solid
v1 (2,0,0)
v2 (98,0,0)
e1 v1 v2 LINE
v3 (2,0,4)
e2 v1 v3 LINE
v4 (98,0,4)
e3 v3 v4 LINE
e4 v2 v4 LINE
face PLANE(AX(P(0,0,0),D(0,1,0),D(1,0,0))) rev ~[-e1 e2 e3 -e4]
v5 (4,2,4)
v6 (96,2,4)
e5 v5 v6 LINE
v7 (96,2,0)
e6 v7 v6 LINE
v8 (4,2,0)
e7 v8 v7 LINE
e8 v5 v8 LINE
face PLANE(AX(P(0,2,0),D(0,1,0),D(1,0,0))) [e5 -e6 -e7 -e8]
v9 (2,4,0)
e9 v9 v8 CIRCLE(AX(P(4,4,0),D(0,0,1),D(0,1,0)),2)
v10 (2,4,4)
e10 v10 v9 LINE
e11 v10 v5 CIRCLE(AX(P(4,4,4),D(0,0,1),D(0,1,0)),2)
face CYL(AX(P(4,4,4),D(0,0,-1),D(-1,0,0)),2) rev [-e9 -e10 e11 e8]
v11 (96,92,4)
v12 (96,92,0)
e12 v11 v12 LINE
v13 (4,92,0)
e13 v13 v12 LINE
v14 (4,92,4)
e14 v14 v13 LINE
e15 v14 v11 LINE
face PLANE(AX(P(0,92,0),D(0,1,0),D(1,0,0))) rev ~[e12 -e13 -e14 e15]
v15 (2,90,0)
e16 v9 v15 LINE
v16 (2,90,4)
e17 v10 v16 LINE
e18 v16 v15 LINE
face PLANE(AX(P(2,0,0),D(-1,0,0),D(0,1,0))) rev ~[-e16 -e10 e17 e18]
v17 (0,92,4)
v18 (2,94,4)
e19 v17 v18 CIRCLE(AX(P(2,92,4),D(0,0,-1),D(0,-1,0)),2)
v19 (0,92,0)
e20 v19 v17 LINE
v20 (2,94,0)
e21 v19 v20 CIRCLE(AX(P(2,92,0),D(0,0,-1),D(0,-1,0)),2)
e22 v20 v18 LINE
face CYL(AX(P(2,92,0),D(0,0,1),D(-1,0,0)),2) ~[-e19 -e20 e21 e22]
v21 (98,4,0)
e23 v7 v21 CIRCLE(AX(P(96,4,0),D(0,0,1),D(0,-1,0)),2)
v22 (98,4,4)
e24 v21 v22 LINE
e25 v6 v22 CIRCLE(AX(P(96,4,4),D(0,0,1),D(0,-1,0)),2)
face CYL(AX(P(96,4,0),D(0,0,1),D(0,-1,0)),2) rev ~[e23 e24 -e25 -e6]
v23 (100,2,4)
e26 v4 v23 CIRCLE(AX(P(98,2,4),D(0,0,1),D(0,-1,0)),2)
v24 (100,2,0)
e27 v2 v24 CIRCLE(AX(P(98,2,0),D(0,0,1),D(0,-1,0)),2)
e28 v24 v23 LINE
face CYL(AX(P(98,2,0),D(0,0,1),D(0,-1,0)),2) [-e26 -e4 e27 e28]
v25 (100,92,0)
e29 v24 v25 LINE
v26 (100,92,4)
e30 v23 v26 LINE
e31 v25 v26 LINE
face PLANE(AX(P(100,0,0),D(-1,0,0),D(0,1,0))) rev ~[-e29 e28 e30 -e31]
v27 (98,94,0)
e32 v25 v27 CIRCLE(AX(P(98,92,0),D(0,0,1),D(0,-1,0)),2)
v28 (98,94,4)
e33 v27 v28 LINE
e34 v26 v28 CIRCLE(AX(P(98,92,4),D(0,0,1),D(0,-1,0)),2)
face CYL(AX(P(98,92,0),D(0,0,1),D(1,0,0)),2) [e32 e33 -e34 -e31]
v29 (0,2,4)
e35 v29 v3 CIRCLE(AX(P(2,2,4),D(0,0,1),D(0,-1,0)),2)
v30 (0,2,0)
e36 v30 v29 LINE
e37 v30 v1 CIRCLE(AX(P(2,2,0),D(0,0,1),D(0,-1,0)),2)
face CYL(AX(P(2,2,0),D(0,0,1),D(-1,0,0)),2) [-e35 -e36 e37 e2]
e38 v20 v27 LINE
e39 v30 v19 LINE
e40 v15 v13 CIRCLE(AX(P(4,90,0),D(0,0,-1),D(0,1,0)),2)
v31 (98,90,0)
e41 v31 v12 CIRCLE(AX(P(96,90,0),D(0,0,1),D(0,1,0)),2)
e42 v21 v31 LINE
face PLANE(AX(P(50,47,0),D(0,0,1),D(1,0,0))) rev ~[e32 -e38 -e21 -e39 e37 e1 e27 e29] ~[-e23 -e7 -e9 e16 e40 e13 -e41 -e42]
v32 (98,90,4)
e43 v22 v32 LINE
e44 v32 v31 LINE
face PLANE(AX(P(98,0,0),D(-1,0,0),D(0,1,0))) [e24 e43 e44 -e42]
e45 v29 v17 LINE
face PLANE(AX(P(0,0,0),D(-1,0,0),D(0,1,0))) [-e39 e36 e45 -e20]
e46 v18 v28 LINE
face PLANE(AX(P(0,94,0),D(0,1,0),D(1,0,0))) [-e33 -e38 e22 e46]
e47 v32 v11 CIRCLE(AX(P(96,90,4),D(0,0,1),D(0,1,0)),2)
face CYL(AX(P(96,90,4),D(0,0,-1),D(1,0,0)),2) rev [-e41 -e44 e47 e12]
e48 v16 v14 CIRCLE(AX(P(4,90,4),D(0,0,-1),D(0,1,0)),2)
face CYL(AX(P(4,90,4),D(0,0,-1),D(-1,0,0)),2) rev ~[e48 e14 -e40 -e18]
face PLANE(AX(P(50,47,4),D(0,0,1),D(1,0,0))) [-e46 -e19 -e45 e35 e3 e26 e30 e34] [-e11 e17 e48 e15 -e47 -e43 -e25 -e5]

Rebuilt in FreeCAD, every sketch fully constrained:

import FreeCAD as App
import Part
import Sketcher

V = App.Vector


def edges_at(feature, points):
    """Names of the edges that pass closest to the given points."""
    edges = feature.Shape.Edges
    near = lambda p: min(range(len(edges)), key=lambda i: edges[i].distToShape(Part.Vertex(*p))[0])
    return sorted({f"Edge{near(p) + 1}" for p in points})


def faces_at(feature, points):
    """Names of the faces that lie closest to the given points."""
    faces = feature.Shape.Faces
    near = lambda p: min(range(len(faces)), key=lambda i: faces[i].distToShape(Part.Vertex(*p))[0])
    return sorted({f"Face{near(p) + 1}" for p in points})

doc = App.newDocument("Part")
body = doc.addObject("PartDesign::Body", "Body")

# Sketch on XY plane
sketch1 = body.newObject("Sketcher::SketchObject", "Sketch")
sketch1.AttachmentSupport = (doc.getObject("XY_Plane"), [""])
sketch1.MapMode = "FlatFace"
sketch1.addGeometry([
    Part.LineSegment(V(0, 94, 0), V(0, 0, 0)),
    Part.LineSegment(V(0, 0, 0), V(100, 0, 0)),
    Part.LineSegment(V(100, 0, 0), V(100, 94, 0)),
    Part.LineSegment(V(100, 94, 0), V(0, 94, 0)),
], False)
sketch1.addConstraint([
    Sketcher.Constraint("Coincident", 0, 2, 1, 1),
    Sketcher.Constraint("Coincident", 1, 2, 2, 1),
    Sketcher.Constraint("Coincident", 2, 2, 3, 1),
    Sketcher.Constraint("Coincident", 3, 2, 0, 1),
    Sketcher.Constraint("Vertical", 0),
    Sketcher.Constraint("Horizontal", 1),
    Sketcher.Constraint("Vertical", 2),
    Sketcher.Constraint("Horizontal", 3),
    Sketcher.Constraint("Coincident", 0, 2, -1, 1),
    Sketcher.Constraint("DistanceX", 1, 1, 1, 2, 100.0),
    Sketcher.Constraint("DistanceY", 0, 2, 0, 1, 94.0),
])
pad1 = body.newObject("PartDesign::Pad", "Pad")
pad1.Profile = sketch1
pad1.Length = 4
doc.recompute()

thickness = body.newObject("PartDesign::Thickness", "Thickness")
thickness.Base = (pad1, faces_at(pad1, [(50, 47, 4), (50, 47, 0)]))
thickness.Value = 2
thickness.Reversed = True
thickness.Join = "Arc"
doc.recompute()

fillet = body.newObject("PartDesign::Fillet", "Fillet")
fillet.Base = (thickness, edges_at(thickness, [
    (0, 94, 2),
    (0, 0, 2),
    (100, 94, 2),
    (100, 0, 2),
    (2, 92, 2),
    (2, 2, 2),
    (98, 92, 2),
    (98, 2, 2),
]))
fillet.Radius = 2

doc.recompute()
